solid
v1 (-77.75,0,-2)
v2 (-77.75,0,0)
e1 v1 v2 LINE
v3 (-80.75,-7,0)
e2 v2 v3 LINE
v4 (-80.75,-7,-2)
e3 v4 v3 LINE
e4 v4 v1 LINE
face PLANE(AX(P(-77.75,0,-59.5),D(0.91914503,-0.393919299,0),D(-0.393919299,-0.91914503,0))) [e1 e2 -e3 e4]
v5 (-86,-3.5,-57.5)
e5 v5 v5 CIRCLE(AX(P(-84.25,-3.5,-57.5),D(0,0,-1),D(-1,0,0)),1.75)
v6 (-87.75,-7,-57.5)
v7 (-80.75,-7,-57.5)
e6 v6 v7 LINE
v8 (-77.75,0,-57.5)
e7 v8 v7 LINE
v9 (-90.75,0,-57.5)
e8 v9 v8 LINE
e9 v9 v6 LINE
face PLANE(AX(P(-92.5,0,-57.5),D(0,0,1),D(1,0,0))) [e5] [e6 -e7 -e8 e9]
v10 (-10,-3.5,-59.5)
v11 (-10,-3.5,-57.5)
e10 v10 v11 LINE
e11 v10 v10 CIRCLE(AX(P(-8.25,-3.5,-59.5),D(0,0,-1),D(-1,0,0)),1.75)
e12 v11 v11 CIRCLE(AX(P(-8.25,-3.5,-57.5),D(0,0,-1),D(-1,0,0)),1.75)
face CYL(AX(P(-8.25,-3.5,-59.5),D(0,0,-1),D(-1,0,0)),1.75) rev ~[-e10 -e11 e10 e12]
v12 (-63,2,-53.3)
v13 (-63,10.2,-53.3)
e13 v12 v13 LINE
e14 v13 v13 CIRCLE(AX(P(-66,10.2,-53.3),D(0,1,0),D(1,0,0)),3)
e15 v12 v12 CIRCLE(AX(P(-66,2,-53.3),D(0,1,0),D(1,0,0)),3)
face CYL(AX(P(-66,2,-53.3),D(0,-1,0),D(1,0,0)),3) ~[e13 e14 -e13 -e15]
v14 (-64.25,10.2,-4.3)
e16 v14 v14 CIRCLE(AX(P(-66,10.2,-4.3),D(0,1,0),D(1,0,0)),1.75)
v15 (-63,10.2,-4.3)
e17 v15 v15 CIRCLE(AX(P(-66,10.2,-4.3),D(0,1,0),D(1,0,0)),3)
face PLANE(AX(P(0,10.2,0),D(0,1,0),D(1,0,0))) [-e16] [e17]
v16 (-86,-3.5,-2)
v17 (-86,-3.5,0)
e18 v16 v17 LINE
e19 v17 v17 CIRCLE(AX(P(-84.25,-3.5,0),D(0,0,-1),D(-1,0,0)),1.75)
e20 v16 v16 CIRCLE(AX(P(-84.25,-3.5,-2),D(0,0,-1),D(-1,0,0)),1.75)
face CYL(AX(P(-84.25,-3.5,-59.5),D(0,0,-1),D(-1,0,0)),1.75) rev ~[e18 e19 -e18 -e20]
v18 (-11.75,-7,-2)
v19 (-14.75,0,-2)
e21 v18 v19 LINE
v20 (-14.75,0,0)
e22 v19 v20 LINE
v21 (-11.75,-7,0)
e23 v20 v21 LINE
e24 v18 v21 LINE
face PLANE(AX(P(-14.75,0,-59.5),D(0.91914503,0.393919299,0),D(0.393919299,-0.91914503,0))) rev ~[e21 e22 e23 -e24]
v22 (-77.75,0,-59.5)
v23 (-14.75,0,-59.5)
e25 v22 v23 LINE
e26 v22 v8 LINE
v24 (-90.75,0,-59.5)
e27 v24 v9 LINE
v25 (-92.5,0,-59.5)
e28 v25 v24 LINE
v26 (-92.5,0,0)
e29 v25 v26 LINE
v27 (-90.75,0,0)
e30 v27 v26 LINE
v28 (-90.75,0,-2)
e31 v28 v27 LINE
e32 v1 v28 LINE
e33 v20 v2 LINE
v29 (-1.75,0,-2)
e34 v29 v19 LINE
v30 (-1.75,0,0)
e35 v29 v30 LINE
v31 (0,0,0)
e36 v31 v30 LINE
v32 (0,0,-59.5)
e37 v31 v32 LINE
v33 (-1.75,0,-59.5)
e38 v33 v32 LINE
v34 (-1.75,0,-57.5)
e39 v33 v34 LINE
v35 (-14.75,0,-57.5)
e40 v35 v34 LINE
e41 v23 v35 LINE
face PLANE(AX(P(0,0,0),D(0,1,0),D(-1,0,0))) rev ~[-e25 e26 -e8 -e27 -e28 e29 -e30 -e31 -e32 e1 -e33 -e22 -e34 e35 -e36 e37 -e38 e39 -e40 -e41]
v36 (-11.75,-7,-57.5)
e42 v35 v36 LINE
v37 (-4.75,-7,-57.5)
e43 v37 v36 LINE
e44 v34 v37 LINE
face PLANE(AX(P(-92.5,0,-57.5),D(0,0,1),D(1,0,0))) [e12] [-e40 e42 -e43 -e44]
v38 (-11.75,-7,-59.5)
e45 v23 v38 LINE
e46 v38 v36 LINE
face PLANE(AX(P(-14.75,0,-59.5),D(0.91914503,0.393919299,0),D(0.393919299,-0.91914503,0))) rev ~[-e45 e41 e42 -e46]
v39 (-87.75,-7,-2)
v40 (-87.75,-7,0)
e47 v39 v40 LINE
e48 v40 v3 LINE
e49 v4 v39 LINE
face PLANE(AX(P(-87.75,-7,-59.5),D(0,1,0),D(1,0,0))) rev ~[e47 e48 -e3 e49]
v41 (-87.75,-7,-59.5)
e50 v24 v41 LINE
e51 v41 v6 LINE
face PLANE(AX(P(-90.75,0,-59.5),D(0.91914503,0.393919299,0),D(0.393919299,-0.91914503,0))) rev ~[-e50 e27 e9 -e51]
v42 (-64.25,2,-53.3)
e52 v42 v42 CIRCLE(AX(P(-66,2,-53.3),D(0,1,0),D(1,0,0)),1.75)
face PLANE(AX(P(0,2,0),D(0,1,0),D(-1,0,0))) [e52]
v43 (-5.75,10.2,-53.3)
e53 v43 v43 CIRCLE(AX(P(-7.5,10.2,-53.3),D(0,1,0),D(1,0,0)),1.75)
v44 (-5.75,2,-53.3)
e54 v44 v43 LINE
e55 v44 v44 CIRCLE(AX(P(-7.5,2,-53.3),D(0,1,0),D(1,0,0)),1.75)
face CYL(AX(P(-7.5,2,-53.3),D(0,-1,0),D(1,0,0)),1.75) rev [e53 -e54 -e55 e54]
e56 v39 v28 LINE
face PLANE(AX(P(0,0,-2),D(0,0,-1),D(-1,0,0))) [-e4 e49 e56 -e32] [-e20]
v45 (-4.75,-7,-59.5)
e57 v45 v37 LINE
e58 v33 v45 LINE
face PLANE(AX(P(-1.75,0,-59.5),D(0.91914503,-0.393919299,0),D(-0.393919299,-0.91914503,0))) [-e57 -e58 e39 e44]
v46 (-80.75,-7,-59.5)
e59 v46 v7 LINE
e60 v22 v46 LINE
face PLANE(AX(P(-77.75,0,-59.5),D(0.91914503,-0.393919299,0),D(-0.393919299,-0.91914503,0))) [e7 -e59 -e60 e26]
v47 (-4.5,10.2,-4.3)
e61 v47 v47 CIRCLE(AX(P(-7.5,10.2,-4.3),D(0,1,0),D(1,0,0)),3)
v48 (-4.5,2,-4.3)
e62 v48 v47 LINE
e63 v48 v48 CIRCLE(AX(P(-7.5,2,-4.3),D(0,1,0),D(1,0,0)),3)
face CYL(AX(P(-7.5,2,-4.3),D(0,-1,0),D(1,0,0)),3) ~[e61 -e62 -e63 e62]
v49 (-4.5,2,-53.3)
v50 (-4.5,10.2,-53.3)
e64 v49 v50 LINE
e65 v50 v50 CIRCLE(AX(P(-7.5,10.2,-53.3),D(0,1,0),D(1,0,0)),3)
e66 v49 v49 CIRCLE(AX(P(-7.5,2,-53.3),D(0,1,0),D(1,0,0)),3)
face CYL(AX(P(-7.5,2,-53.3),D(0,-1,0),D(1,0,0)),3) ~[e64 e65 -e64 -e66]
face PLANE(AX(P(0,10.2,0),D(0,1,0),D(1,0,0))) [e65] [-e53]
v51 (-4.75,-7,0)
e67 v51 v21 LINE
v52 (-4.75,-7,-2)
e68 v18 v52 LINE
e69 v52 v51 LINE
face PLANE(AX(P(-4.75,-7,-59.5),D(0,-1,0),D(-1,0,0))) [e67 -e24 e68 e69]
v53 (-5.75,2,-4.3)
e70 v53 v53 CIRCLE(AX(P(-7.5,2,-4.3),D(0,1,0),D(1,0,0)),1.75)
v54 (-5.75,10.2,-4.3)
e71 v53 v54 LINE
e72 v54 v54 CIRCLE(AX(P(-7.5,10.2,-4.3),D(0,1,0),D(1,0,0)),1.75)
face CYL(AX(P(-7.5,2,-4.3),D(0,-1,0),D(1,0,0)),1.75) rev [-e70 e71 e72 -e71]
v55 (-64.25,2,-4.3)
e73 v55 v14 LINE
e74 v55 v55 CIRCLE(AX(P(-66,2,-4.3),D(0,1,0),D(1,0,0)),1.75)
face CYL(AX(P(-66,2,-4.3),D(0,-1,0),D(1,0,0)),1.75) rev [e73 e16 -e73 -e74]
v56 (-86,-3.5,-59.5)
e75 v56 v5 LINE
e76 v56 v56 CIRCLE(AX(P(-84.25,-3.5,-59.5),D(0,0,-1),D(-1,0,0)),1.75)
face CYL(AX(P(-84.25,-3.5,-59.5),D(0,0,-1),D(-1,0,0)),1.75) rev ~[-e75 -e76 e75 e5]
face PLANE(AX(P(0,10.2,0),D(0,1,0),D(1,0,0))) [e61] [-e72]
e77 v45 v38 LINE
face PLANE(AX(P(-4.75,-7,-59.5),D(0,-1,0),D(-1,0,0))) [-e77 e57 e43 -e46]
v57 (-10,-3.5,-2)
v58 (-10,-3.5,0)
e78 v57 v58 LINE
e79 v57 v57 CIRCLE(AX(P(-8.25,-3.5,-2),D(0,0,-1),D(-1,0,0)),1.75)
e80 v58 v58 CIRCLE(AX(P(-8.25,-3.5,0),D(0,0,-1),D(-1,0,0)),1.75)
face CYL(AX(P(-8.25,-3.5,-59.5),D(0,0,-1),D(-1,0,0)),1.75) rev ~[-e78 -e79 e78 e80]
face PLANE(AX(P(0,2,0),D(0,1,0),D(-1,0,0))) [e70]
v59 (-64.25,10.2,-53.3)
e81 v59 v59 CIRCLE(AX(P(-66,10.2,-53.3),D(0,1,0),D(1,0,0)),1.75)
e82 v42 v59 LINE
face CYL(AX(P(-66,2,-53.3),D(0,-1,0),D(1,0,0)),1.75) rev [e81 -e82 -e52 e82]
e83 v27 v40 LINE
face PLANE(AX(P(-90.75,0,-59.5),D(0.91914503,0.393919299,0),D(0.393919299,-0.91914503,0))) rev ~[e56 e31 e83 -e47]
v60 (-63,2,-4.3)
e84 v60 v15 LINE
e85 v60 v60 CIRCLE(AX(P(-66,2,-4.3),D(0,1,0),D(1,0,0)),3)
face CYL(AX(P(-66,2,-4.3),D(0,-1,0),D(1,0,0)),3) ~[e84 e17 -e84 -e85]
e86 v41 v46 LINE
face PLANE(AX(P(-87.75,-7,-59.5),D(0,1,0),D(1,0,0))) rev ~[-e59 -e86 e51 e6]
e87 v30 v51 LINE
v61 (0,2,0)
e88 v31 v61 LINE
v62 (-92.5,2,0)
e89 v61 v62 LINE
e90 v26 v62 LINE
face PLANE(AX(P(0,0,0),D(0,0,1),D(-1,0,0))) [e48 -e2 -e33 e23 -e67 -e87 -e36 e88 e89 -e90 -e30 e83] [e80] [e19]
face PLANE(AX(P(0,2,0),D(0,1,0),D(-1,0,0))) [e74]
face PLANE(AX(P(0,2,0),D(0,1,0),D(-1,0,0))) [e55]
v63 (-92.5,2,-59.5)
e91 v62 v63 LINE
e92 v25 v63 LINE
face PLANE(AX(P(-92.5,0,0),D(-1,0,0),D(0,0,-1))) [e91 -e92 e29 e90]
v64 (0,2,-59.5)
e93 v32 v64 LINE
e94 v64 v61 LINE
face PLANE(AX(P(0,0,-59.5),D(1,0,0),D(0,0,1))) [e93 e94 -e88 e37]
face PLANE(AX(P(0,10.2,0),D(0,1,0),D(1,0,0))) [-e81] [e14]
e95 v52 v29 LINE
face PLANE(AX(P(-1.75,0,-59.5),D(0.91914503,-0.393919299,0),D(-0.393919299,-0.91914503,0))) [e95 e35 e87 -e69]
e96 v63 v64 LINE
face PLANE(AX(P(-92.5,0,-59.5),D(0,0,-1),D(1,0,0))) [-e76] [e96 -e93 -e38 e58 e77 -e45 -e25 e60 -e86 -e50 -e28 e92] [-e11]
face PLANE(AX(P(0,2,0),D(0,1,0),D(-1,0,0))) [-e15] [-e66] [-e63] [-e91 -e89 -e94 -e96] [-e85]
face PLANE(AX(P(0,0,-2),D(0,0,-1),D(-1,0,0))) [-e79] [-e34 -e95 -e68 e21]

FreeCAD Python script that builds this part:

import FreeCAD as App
import Part
import Sketcher

V = App.Vector
Q = App.Units.Quantity

doc = App.newDocument("Part")
body = doc.addObject("PartDesign::Body", "Body")

sketch1 = body.newObject("Sketcher::SketchObject", "Sketch")
sketch1.AttachmentSupport = (doc.getObject("XZ_Plane"), [""])
sketch1.MapMode = "FlatFace"
sketch1.addGeometry([
    Part.LineSegment(V(-92.5, 0, 0), V(0, 0, 0)),
    Part.LineSegment(V(0, 0, 0), V(0, -59.5, 0)),
    Part.LineSegment(V(0, -59.5, 0), V(-92.5, -59.5, 0)),
    Part.LineSegment(V(-92.5, -59.5, 0), V(-92.5, 0, 0)),
], False)
sketch1.addConstraint([
    Sketcher.Constraint("Coincident", 0, 2, 1, 1),
    Sketcher.Constraint("Coincident", 1, 2, 2, 1),
    Sketcher.Constraint("Coincident", 2, 2, 3, 1),
    Sketcher.Constraint("Coincident", 3, 2, 0, 1),
    Sketcher.Constraint("Horizontal", 0),
    Sketcher.Constraint("Vertical", 1),
    Sketcher.Constraint("Horizontal", 2),
    Sketcher.Constraint("Vertical", 3),
    Sketcher.Constraint("Coincident", 0, 2, -1, 1),
    Sketcher.Constraint("DistanceX", 0, 1, 0, 2, Q("92.5 mm")),
    Sketcher.Constraint("DistanceY", 1, 2, 1, 1, Q("59.5 mm")),
])
pad1 = body.newObject("PartDesign::Pad", "Pad")
pad1.Profile = sketch1
pad1.Length = 2
pad1.Reversed = True

sketch2 = body.newObject("Sketcher::SketchObject", "Sketch001")
sketch2.AttachmentSupport = (doc.getObject("XY_Plane"), [""])
sketch2.MapMode = "FlatFace"
sketch2.AttachmentOffset = App.Placement(V(0, 0, -59.5), App.Rotation())
sketch2.addGeometry([
    Part.LineSegment(V(-90.75, 0, 0), V(-77.75, 0, 0)),
    Part.LineSegment(V(-77.75, 0, 0), V(-80.75, -7, 0)),
    Part.LineSegment(V(-80.75, -7, 0), V(-87.75, -7, 0)),
    Part.LineSegment(V(-87.75, -7, 0), V(-90.75, 0, 0)),
    Part.Circle(V(-84.25, -3.5, 0), V(0, 0, 1), 1.75),
    Part.LineSegment(V(-14.75, 0, 0), V(-1.75, 0, 0)),
    Part.LineSegment(V(-1.75, 0, 0), V(-4.75, -7, 0)),
    Part.LineSegment(V(-4.75, -7, 0), V(-11.75, -7, 0)),
    Part.LineSegment(V(-11.75, -7, 0), V(-14.75, 0, 0)),
    Part.Circle(V(-8.25, -3.5, 0), V(0, 0, 1), 1.75),
], False)
sketch2.addConstraint([
    Sketcher.Constraint("Coincident", 0, 2, 1, 1),
    Sketcher.Constraint("Coincident", 1, 2, 2, 1),
    Sketcher.Constraint("Coincident", 2, 2, 3, 1),
    Sketcher.Constraint("Coincident", 3, 2, 0, 1),
    Sketcher.Constraint("Coincident", 5, 2, 6, 1),
    Sketcher.Constraint("Coincident", 6, 2, 7, 1),
    Sketcher.Constraint("Coincident", 7, 2, 8, 1),
    Sketcher.Constraint("Coincident", 8, 2, 5, 1),
    Sketcher.Constraint("Horizontal", 0),
    Sketcher.Constraint("Horizontal", 2),
    Sketcher.Constraint("Horizontal", 5),
    Sketcher.Constraint("Horizontal", 7),
    Sketcher.Constraint("Equal", 4, 9),
    Sketcher.Constraint("PointOnObject", 0, 2, -1),
    Sketcher.Constraint("PointOnObject", 5, 2, -1),
    Sketcher.Constraint("Parallel", 1, 6),
    Sketcher.Constraint("Parallel", 3, 8),
    Sketcher.Constraint("Horizontal", 4, 3, 9, 3),
    Sketcher.Constraint("Horizontal", 2, 2, 6, 2),
    Sketcher.Constraint("Equal", 0, 5),
    Sketcher.Constraint("Equal", 1, 3),
    Sketcher.Constraint("Diameter", 4, Q("3.5 mm")),
    Sketcher.Constraint("DistanceX", 0, 1, 0, 2, Q("13 mm")),
    Sketcher.Constraint("DistanceX", 2, 2, 2, 1, Q("7 mm")),
    Sketcher.Constraint("DistanceY", 1, 2, -1, 1, Q("7 mm")),
    Sketcher.Constraint("DistanceY", 4, 3, -1, 1, Q("3.5 mm")),
    Sketcher.Constraint("DistanceX", 4, 3, 0, 2, Q("6.5 mm")),
    Sketcher.Constraint("DistanceX", 9, 3, 5, 2, Q("6.5 mm")),
    Sketcher.Constraint("DistanceX", 5, 2, -1, 1, Q("1.75 mm")),
    Sketcher.Constraint("DistanceX", 4, 3, 9, 3, Q("76 mm")),
])
pad2 = body.newObject("PartDesign::Pad", "Pad001")
pad2.Profile = sketch2
pad2.Length = 59.5

sketch3 = body.newObject("Sketcher::SketchObject", "Sketch002")
sketch3.AttachmentSupport = (doc.getObject("XZ_Plane"), [""])
sketch3.MapMode = "FlatFace"
sketch3.addGeometry([
    Part.LineSegment(V(-92.5, -2, 0), V(-92.5, -57.5, 0)),
    Part.LineSegment(V(-92.5, -57.5, 0), V(0, -57.5, 0)),
    Part.LineSegment(V(0, -57.5, 0), V(0, -2, 0)),
    Part.LineSegment(V(0, -2, 0), V(-92.5, -2, 0)),
], False)
sketch3.addConstraint([
    Sketcher.Constraint("Coincident", 0, 2, 1, 1),
    Sketcher.Constraint("Coincident", 1, 2, 2, 1),
    Sketcher.Constraint("Coincident", 2, 2, 3, 1),
    Sketcher.Constraint("Coincident", 3, 2, 0, 1),
    Sketcher.Constraint("Vertical", 0),
    Sketcher.Constraint("Horizontal", 1),
    Sketcher.Constraint("Vertical", 2),
    Sketcher.Constraint("Horizontal", 3),
    Sketcher.Constraint("PointOnObject", 1, 2, -2),
    Sketcher.Constraint("DistanceY", 2, 2, -1, 1, Q("2 mm")),
    Sketcher.Constraint("DistanceX", 1, 1, 1, 2, Q("92.5 mm")),
    Sketcher.Constraint("DistanceY", 0, 2, 0, 1, Q("55.5 mm")),
])
pocket1 = body.newObject("PartDesign::Pocket", "Pocket")
pocket1.Profile = sketch3
pocket1.Type = "ThroughAll"
pocket1.Reversed = True

sketch4 = body.newObject("Sketcher::SketchObject", "Sketch003")
sketch4.AttachmentSupport = (doc.getObject("XZ_Plane"), [""])
sketch4.MapMode = "FlatFace"
sketch4.AttachmentOffset = App.Placement(V(0, 0, -2), App.Rotation())
sketch4.addGeometry([
    Part.Circle(V(-7.5, -4.3, 0), V(0, 0, 1), 3),
    Part.Circle(V(-7.5, -4.3, 0), V(0, 0, 1), 1.75),
    Part.Circle(V(-7.5, -53.3, 0), V(0, 0, 1), 3),
    Part.Circle(V(-7.5, -53.3, 0), V(0, 0, 1), 1.75),
    Part.Circle(V(-66, -4.3, 0), V(0, 0, 1), 3),
    Part.Circle(V(-66, -4.3, 0), V(0, 0, 1), 1.75),
    Part.Circle(V(-66, -53.3, 0), V(0, 0, 1), 3),
    Part.Circle(V(-66, -53.3, 0), V(0, 0, 1), 1.75),
], False)
sketch4.addConstraint([
    Sketcher.Constraint("Coincident", 1, 3, 0, 3),
    Sketcher.Constraint("Coincident", 3, 3, 2, 3),
    Sketcher.Constraint("Coincident", 5, 3, 4, 3),
    Sketcher.Constraint("Coincident", 7, 3, 6, 3),
    Sketcher.Constraint("Equal", 0, 2),
    Sketcher.Constraint("Equal", 1, 3),
    Sketcher.Constraint("Equal", 2, 4),
    Sketcher.Constraint("Equal", 3, 5),
    Sketcher.Constraint("Equal", 4, 6),
    Sketcher.Constraint("Equal", 5, 7),
    Sketcher.Constraint("Horizontal", 1, 3, 4, 3),
    Sketcher.Constraint("Horizontal", 3, 3, 6, 3),
    Sketcher.Constraint("Vertical", 1, 3, 2, 3),
    Sketcher.Constraint("Vertical", 5, 3, 6, 3),
    Sketcher.Constraint("Diameter", 0, Q("6 mm")),
    Sketcher.Constraint("Diameter", 1, Q("3.5 mm")),
    Sketcher.Constraint("DistanceX", 4, 3, 0, 3, Q("58.5 mm")),
    Sketcher.Constraint("DistanceX", 4, 3, -1, 1, Q("66 mm")),
    Sketcher.Constraint("DistanceY", 2, 3, 0, 3, Q("49 mm")),
    Sketcher.Constraint("DistanceY", 0, 3, -1, 1, Q("4.3 mm")),
])
pad3 = body.newObject("PartDesign::Pad", "Pad002")
pad3.Profile = sketch4
pad3.Length = 8.2
pad3.Reversed = True

doc.recompute()
